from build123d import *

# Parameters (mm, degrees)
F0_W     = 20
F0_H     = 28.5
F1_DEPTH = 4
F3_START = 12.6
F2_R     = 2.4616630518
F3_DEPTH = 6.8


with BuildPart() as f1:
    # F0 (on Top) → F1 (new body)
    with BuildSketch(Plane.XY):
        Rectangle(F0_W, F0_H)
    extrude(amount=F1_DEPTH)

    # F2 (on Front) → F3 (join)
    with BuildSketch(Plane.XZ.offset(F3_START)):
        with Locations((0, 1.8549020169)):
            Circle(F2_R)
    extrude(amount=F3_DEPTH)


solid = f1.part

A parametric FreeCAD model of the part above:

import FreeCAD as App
import Part
import Sketcher
Q = App.Units.Quantity


def add_polygon(sketch, points):
    """Adds a closed chain of lines whose ends are joined by coincident constraints."""
    first, n = sketch.GeometryCount, len(points)
    for a, b in zip(points, points[1:] + points[:1]):
        sketch.addGeometry(Part.LineSegment(App.Vector(*a, 0), App.Vector(*b, 0)), False)
    for i in range(n):
        sketch.addConstraint(Sketcher.Constraint("Coincident", first + i, 2, first + (i + 1) % n, 1))

doc = App.newDocument("Part")
body = doc.addObject("PartDesign::Body", "Body")

sketch1 = body.newObject("Sketcher::SketchObject", "Sketch")
sketch1.AttachmentSupport = (doc.getObject("XY_Plane"), [""])
sketch1.MapMode = "FlatFace"
add_polygon(sketch1, [(-10, 14), (-10, -14), (10, -14), (10, 14)])
sketch1.addConstraint(Sketcher.Constraint("Vertical", 0))
sketch1.addConstraint(Sketcher.Constraint("Horizontal", 1))
sketch1.addConstraint(Sketcher.Constraint("Vertical", 2))
sketch1.addConstraint(Sketcher.Constraint("Horizontal", 3))
sketch1.addConstraint(Sketcher.Constraint("Symmetric", 0, 2, 2, 2, -1, 1))
sketch1.addConstraint(Sketcher.Constraint("DistanceX", 1, 1, 1, 2, Q("20 mm")))
sketch1.addConstraint(Sketcher.Constraint("DistanceY", 0, 2, 0, 1, Q("28.5 mm")))
pad1 = body.newObject("PartDesign::Pad", "Pad")
pad1.Profile = sketch1
pad1.Length = 4

sketch2 = body.newObject("Sketcher::SketchObject", "Sketch001")
sketch2.AttachmentSupport = (doc.getObject("XZ_Plane"), [""])
sketch2.MapMode = "FlatFace"
sketch2.AttachmentOffset = App.Placement(App.Vector(0, 0, 12.6), App.Rotation())
sketch2.addGeometry(Part.Circle(App.Vector(0, 1.9, 0), App.Vector(0, 0, 1), 2.5), False)
sketch2.addConstraint(Sketcher.Constraint("PointOnObject", 0, 3, -2))
sketch2.addConstraint(Sketcher.Constraint("Diameter", 0, Q("4.923326 mm")))
sketch2.addConstraint(Sketcher.Constraint("DistanceY", -1, 1, 0, 3, Q("1.854902 mm")))
pad2 = body.newObject("PartDesign::Pad", "Pad001")
pad2.Profile = sketch2
pad2.Length = 6.8

doc.recompute()
